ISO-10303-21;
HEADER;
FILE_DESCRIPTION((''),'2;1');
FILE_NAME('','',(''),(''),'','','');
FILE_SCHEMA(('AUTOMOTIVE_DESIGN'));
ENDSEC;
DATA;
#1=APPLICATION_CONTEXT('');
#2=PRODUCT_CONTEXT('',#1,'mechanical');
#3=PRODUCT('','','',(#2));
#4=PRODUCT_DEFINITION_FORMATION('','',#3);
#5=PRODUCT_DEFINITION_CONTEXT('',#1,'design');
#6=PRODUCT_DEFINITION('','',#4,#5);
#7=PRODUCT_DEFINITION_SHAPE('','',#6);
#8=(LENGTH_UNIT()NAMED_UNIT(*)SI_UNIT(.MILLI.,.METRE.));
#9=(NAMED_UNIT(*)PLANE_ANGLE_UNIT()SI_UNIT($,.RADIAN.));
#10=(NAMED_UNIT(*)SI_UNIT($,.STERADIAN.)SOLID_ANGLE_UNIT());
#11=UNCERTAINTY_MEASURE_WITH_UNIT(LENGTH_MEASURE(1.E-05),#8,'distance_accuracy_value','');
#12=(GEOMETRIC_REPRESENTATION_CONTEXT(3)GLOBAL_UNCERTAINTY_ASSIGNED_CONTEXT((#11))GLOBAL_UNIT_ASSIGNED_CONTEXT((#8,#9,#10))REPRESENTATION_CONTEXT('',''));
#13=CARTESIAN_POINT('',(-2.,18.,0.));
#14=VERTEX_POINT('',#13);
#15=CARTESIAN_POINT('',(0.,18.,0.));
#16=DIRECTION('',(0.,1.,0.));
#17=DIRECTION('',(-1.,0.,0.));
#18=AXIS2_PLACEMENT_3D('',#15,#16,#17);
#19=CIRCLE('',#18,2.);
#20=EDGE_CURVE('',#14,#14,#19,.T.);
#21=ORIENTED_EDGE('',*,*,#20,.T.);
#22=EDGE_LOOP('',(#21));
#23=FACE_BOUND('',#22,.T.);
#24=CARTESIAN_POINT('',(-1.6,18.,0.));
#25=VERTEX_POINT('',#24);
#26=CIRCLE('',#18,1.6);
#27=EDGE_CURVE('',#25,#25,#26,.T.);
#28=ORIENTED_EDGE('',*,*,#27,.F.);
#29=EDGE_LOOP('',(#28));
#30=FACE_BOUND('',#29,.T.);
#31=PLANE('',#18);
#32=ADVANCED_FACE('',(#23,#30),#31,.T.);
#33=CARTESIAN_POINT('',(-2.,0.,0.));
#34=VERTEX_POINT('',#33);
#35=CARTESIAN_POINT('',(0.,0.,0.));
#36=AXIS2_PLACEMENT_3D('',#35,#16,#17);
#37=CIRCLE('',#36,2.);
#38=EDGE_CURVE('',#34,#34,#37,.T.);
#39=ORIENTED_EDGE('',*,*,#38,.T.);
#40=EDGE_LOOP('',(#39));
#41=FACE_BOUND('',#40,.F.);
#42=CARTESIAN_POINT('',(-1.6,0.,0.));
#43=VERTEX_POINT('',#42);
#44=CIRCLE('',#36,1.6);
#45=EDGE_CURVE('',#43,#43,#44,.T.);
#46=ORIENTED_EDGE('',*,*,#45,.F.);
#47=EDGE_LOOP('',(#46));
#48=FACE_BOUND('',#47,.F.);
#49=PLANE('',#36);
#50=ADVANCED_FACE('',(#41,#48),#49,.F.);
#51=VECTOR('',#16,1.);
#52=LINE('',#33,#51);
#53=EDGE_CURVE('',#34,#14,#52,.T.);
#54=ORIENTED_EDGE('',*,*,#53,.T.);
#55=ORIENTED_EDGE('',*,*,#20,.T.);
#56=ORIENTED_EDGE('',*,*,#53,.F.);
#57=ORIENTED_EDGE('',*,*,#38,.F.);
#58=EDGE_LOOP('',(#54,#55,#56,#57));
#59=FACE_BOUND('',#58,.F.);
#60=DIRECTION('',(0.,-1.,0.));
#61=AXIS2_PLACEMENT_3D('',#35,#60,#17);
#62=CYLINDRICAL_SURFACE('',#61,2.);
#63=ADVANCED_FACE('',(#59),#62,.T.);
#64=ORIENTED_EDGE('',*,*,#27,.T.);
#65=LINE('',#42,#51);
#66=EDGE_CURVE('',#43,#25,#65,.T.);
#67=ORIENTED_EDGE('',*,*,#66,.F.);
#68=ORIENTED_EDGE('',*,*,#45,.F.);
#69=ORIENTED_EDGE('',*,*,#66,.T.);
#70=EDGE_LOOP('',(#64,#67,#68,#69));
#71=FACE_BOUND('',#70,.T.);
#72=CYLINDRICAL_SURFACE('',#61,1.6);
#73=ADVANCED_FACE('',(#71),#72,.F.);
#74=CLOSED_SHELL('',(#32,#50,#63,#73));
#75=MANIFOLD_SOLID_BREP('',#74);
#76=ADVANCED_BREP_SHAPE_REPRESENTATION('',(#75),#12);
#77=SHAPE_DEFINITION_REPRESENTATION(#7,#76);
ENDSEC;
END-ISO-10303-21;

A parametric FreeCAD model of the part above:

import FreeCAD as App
import Part
import Sketcher

doc = App.newDocument("Part")
body = doc.addObject("PartDesign::Body", "Body")

sketch1 = body.newObject("Sketcher::SketchObject", "Sketch")
sketch1.AttachmentSupport = (doc.getObject("XZ_Plane"), [""])
sketch1.MapMode = "FlatFace"
sketch1.addGeometry([
    Part.Circle(App.Vector(0, 0, 0), App.Vector(0, 0, 1), 2),
    Part.Circle(App.Vector(0, 0, 0), App.Vector(0, 0, 1), 1.6),
], False)
sketch1.addConstraint([
    Sketcher.Constraint("Coincident", 0, 3, -1, 1),
    Sketcher.Constraint("Coincident", 1, 3, -1, 1),
    Sketcher.Constraint("Diameter", 0, 4.0),
    Sketcher.Constraint("Diameter", 1, 3.2),
])
pad1 = body.newObject("PartDesign::Pad", "Pad")
pad1.Profile = sketch1
pad1.Length = 18
pad1.Reversed = True

doc.recompute()
